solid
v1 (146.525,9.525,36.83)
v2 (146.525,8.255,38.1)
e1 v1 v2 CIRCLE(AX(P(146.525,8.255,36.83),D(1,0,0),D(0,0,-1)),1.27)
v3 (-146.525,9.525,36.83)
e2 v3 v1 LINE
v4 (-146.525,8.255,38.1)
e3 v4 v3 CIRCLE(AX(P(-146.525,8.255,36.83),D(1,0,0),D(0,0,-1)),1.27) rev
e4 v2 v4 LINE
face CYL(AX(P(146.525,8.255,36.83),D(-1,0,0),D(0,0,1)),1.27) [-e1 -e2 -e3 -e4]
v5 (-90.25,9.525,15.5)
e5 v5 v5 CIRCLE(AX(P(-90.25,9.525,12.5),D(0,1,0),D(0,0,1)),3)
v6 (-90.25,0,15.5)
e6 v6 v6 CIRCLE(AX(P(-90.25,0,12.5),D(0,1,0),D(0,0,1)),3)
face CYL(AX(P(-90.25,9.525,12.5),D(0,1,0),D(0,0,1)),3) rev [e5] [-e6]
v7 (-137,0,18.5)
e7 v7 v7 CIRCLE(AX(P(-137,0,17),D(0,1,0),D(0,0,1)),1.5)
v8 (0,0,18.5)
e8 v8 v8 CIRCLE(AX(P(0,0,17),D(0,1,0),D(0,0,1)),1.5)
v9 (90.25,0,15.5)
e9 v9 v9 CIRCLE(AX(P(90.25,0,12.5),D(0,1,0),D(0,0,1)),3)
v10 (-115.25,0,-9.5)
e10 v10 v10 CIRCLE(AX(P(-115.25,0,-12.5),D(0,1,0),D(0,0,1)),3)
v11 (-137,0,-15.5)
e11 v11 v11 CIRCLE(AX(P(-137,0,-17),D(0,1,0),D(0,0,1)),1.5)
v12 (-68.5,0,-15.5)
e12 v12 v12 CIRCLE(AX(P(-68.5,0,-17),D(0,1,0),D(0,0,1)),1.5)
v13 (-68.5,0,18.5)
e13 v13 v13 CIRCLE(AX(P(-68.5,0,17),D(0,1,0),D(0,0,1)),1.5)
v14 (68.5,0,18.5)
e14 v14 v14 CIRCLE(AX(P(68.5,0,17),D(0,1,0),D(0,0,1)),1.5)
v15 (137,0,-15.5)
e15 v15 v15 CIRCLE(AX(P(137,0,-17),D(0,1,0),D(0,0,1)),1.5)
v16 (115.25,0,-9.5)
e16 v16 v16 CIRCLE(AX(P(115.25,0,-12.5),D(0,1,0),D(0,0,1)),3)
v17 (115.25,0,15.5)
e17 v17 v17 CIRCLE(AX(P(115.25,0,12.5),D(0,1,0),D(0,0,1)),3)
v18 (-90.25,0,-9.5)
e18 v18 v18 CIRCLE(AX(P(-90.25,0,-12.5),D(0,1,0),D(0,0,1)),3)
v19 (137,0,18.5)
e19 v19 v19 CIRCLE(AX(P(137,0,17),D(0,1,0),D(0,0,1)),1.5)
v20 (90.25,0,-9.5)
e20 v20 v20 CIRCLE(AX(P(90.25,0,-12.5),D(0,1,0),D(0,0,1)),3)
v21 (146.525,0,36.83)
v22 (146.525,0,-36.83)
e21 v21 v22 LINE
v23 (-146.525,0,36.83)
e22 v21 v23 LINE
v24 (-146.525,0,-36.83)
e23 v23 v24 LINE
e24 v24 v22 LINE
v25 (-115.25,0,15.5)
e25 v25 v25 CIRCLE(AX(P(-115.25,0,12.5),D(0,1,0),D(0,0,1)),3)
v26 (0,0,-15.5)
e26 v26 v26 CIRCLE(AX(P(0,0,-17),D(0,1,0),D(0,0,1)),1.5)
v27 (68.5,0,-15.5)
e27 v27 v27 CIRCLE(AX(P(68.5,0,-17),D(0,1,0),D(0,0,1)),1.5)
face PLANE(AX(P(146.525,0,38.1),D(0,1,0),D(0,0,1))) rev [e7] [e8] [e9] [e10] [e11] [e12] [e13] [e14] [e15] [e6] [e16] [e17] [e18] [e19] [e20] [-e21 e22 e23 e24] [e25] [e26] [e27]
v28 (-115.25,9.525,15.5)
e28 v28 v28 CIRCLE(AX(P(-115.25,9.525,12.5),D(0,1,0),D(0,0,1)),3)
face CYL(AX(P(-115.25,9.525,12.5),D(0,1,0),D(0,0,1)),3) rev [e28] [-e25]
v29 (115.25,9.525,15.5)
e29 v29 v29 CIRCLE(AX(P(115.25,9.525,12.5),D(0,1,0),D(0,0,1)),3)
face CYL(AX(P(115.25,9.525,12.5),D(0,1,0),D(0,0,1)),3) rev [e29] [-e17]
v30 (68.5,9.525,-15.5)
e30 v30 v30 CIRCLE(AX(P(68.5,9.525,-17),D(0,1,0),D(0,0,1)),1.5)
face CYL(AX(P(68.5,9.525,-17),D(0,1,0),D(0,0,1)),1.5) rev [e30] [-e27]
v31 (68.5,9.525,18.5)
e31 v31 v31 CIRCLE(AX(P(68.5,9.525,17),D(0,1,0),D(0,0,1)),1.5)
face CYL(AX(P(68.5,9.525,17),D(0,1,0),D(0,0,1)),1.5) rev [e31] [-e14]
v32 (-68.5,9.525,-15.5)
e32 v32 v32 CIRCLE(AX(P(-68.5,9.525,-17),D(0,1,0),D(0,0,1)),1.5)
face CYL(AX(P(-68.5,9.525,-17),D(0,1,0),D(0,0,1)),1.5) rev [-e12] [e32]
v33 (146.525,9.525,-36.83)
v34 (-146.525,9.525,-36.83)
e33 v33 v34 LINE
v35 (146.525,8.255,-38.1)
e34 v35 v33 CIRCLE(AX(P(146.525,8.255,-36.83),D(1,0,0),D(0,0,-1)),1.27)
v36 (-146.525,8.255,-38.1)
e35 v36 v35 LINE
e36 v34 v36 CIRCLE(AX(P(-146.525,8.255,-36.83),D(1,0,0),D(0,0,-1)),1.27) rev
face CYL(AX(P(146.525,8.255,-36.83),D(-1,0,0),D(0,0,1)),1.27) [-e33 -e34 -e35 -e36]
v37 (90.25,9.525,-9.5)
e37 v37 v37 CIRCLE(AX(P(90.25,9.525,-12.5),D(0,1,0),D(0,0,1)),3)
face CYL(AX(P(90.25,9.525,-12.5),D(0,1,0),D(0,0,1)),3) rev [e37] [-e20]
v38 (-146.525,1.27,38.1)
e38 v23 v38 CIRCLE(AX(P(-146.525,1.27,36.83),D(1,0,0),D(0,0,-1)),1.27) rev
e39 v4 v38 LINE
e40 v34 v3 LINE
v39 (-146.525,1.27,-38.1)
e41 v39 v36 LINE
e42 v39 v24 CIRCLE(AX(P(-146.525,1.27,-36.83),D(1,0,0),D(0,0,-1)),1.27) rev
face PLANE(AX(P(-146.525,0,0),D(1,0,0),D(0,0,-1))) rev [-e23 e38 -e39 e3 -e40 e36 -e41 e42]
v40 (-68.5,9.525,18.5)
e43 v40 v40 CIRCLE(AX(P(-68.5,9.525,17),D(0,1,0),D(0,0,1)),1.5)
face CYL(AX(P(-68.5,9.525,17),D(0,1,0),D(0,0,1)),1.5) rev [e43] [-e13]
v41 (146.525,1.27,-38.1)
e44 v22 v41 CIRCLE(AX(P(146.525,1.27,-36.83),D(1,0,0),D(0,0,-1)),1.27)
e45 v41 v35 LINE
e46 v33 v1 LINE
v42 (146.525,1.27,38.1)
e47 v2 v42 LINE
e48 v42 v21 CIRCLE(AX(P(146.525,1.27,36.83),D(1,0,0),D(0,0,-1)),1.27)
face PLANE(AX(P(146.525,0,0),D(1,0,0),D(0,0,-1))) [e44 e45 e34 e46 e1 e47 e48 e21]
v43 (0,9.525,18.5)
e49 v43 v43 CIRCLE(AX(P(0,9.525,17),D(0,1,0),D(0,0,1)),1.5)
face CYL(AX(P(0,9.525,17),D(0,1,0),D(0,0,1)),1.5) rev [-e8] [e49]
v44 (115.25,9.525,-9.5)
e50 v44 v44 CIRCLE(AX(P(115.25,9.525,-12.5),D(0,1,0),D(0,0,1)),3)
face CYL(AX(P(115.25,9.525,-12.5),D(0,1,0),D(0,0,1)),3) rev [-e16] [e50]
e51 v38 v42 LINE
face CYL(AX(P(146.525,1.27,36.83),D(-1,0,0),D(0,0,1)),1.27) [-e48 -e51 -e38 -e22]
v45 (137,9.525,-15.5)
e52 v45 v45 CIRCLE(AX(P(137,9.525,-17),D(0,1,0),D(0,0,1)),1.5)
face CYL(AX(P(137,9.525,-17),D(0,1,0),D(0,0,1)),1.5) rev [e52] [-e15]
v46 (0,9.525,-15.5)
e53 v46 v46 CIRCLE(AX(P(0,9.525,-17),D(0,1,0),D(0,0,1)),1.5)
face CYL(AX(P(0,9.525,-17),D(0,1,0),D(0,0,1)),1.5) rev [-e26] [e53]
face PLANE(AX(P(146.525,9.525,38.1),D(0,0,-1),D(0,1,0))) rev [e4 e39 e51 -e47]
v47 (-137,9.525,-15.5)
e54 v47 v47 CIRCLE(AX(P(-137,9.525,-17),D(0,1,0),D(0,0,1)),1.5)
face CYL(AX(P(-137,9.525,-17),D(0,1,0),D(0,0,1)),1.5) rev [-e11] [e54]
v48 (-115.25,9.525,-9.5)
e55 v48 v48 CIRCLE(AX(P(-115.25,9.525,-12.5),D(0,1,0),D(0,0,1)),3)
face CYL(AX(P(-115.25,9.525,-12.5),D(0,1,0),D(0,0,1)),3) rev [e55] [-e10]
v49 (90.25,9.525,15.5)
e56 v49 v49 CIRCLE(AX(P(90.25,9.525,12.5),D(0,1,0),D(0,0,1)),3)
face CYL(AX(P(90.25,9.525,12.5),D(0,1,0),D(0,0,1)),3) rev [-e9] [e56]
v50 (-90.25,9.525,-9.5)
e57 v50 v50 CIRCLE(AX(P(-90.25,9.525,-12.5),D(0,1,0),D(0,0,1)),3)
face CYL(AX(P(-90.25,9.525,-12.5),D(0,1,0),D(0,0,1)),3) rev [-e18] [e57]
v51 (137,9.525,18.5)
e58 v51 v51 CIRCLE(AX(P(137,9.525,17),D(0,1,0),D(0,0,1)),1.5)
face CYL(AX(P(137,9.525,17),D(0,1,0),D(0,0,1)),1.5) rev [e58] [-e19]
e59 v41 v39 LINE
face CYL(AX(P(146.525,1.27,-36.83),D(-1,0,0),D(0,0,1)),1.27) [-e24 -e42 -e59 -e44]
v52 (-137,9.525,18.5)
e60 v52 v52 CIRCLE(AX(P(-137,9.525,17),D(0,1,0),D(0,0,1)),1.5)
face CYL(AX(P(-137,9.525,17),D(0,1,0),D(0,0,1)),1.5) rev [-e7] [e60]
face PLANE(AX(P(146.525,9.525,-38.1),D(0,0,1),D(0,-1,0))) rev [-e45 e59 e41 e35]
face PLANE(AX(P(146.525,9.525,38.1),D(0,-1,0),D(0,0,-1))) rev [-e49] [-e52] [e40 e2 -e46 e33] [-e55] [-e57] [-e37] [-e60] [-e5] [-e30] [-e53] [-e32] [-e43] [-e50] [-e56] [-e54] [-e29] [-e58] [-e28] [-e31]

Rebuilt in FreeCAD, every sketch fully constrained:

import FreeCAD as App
import Part
import Sketcher

V = App.Vector
Q = App.Units.Quantity


def edges_at(feature, points):
    """Names of the edges that pass closest to the given points."""
    edges = feature.Shape.Edges
    near = lambda p: min(range(len(edges)), key=lambda i: edges[i].distToShape(Part.Vertex(*p))[0])
    return sorted({f"Edge{near(p) + 1}" for p in points})

doc = App.newDocument("Part")
body = doc.addObject("PartDesign::Body", "Body")

# Sketch on YZ plane
sketch1 = body.newObject("Sketcher::SketchObject", "Sketch")
sketch1.AttachmentSupport = (doc.getObject("YZ_Plane"), [""])
sketch1.MapMode = "FlatFace"
sketch1.addGeometry([
    Part.LineSegment(V(10, 38, 0), V(0, 38, 0)),
    Part.LineSegment(V(0, 38, 0), V(0, -38, 0)),
    Part.LineSegment(V(0, -38, 0), V(10, -38, 0)),
    Part.LineSegment(V(10, -38, 0), V(10, 38, 0)),
], False)
sketch1.addConstraint([
    Sketcher.Constraint("Coincident", 0, 2, 1, 1),
    Sketcher.Constraint("Coincident", 1, 2, 2, 1),
    Sketcher.Constraint("Coincident", 2, 2, 3, 1),
    Sketcher.Constraint("Coincident", 3, 2, 0, 1),
    Sketcher.Constraint("Horizontal", 0),
    Sketcher.Constraint("Vertical", 1),
    Sketcher.Constraint("Horizontal", 2),
    Sketcher.Constraint("Vertical", 3),
    Sketcher.Constraint("Symmetric", 0, 2, 1, 2, -1, 1),
    Sketcher.Constraint("DistanceY", 1, 2, 1, 1, Q("3 in")),
    Sketcher.Constraint("DistanceX", 0, 2, 0, 1, Q("0.375 in")),
])
pad1 = body.newObject("PartDesign::Pad", "Pad")
pad1.Profile = sketch1
pad1.Length = 293.05
pad1.Midplane = True

# Sketch on XZ plane
sketch2 = body.newObject("Sketcher::SketchObject", "Sketch001")
sketch2.AttachmentSupport = (doc.getObject("XZ_Plane"), [""])
sketch2.MapMode = "FlatFace"
sketch2.AttachmentOffset = App.Placement(V(0, 0, -0.375 * 25.4), App.Rotation())
sketch2.addGeometry([
    Part.Circle(V(-137, -17, 0), V(0, 0, 1), 1.5),  # 0
    Part.Circle(V(-137, 17, 0), V(0, 0, 1), 1.5),  # 1
    Part.Circle(V(-68.5, -17, 0), V(0, 0, 1), 1.5),  # 2
    Part.Circle(V(-68.5, 17, 0), V(0, 0, 1), 1.5),  # 3
    Part.Circle(V(0, -17, 0), V(0, 0, 1), 1.5),  # 4
    Part.Circle(V(0, 17, 0), V(0, 0, 1), 1.5),  # 5
    Part.Circle(V(68.5, -17, 0), V(0, 0, 1), 1.5),  # 6
    Part.Circle(V(68.5, 17, 0), V(0, 0, 1), 1.5),  # 7
    Part.Circle(V(137, -17, 0), V(0, 0, 1), 1.5),  # 8
    Part.Circle(V(137, 17, 0), V(0, 0, 1), 1.5),  # 9
], False)
sketch2.addConstraint([
    Sketcher.Constraint("Equal", 0, 1),
    Sketcher.Constraint("Equal", 1, 2),
    Sketcher.Constraint("Equal", 2, 3),
    Sketcher.Constraint("Equal", 3, 4),
    Sketcher.Constraint("Equal", 4, 5),
    Sketcher.Constraint("Equal", 5, 6),
    Sketcher.Constraint("Equal", 6, 7),
    Sketcher.Constraint("Equal", 7, 8),
    Sketcher.Constraint("Equal", 8, 9),
    Sketcher.Constraint("Symmetric", 4, 3, 5, 3, -1, 1),
    Sketcher.Constraint("Symmetric", 3, 3, 6, 3, -1, 1),
    Sketcher.Constraint("Symmetric", 2, 3, 7, 3, -1, 1),
    Sketcher.Constraint("Symmetric", 1, 3, 8, 3, -1, 1),
    Sketcher.Constraint("Symmetric", 0, 3, 9, 3, -1, 1),
    Sketcher.Constraint("Symmetric", 2, 3, 6, 3, -2),
    Sketcher.Constraint("Symmetric", 0, 3, 8, 3, -2),
    Sketcher.Constraint("PointOnObject", 4, 3, -2),
    Sketcher.Constraint("Horizontal", 0, 3, 2, 3),
    Sketcher.Constraint("Horizontal", 2, 3, 4, 3),
    Sketcher.Constraint("Diameter", 0, 3.0),
    Sketcher.Constraint("DistanceX", 0, 3, -1, 1, 137.0),
    Sketcher.Constraint("DistanceY", 0, 3, -1, 1, 17.0),
    Sketcher.Constraint("DistanceX", 2, 3, -1, 1, 68.5),
])
doc.recompute()
hole = body.newObject("PartDesign::Hole", "Hole")
hole.Profile = sketch2
hole.ThreadType = "None"
hole.Diameter = 3
hole.DepthType = "ThroughAll"
hole.Reversed = True
doc.recompute()

fillet = body.newObject("PartDesign::Fillet", "Fillet")
fillet.Base = (hole, edges_at(hole, [
    (0, 9.525, 38.1),
    (0, 9.525, -38.1),
    (0, 0, -38.1),
    (0, 0, 38.1),
]))
fillet.Radius = Q("0.05 in")

# Sketch on XZ plane
sketch3 = body.newObject("Sketcher::SketchObject", "Sketch002")
sketch3.AttachmentSupport = (doc.getObject("XZ_Plane"), [""])
sketch3.MapMode = "FlatFace"
sketch3.AttachmentOffset = App.Placement(V(0, 0, -0.375 * 25.4), App.Rotation())
sketch3.addGeometry([
    Part.Circle(V(-115.2, -12.5, 0), V(0, 0, 1), 3),  # 0
    Part.Circle(V(-115.2, 12.5, 0), V(0, 0, 1), 3),  # 1
    Part.Circle(V(-90.2, -12.5, 0), V(0, 0, 1), 3),  # 2
    Part.Circle(V(-90.2, 12.5, 0), V(0, 0, 1), 3),  # 3
    Part.Circle(V(90.2, -12.5, 0), V(0, 0, 1), 3),  # 4
    Part.Circle(V(90.2, 12.5, 0), V(0, 0, 1), 3),  # 5
    Part.Circle(V(115.2, -12.5, 0), V(0, 0, 1), 3),  # 6
    Part.Circle(V(115.2, 12.5, 0), V(0, 0, 1), 3),  # 7
], False)
sketch3.addConstraint([
    Sketcher.Constraint("Equal", 0, 1),
    Sketcher.Constraint("Equal", 1, 2),
    Sketcher.Constraint("Equal", 2, 3),
    Sketcher.Constraint("Equal", 3, 4),
    Sketcher.Constraint("Equal", 4, 5),
    Sketcher.Constraint("Equal", 5, 6),
    Sketcher.Constraint("Equal", 6, 7),
    Sketcher.Constraint("Symmetric", 3, 3, 4, 3, -1, 1),
    Sketcher.Constraint("Symmetric", 2, 3, 5, 3, -1, 1),
    Sketcher.Constraint("Symmetric", 1, 3, 6, 3, -1, 1),
    Sketcher.Constraint("Symmetric", 0, 3, 7, 3, -1, 1),
    Sketcher.Constraint("Symmetric", 2, 3, 4, 3, -2),
    Sketcher.Constraint("Symmetric", 0, 3, 6, 3, -2),
    Sketcher.Constraint("Horizontal", 0, 3, 2, 3),
    Sketcher.Constraint("Diameter", 0, 6.0),
    Sketcher.Constraint("DistanceX", 0, 3, -1, 1, 115.25),
    Sketcher.Constraint("DistanceY", 0, 3, -1, 1, 12.5),
    Sketcher.Constraint("DistanceX", 2, 3, -1, 1, 90.25),
])
doc.recompute()
hole2 = body.newObject("PartDesign::Hole", "Hole001")
hole2.Profile = sketch3
hole2.ThreadType = "None"
hole2.Diameter = 6
hole2.DepthType = "ThroughAll"
hole2.Reversed = True

doc.recompute()
